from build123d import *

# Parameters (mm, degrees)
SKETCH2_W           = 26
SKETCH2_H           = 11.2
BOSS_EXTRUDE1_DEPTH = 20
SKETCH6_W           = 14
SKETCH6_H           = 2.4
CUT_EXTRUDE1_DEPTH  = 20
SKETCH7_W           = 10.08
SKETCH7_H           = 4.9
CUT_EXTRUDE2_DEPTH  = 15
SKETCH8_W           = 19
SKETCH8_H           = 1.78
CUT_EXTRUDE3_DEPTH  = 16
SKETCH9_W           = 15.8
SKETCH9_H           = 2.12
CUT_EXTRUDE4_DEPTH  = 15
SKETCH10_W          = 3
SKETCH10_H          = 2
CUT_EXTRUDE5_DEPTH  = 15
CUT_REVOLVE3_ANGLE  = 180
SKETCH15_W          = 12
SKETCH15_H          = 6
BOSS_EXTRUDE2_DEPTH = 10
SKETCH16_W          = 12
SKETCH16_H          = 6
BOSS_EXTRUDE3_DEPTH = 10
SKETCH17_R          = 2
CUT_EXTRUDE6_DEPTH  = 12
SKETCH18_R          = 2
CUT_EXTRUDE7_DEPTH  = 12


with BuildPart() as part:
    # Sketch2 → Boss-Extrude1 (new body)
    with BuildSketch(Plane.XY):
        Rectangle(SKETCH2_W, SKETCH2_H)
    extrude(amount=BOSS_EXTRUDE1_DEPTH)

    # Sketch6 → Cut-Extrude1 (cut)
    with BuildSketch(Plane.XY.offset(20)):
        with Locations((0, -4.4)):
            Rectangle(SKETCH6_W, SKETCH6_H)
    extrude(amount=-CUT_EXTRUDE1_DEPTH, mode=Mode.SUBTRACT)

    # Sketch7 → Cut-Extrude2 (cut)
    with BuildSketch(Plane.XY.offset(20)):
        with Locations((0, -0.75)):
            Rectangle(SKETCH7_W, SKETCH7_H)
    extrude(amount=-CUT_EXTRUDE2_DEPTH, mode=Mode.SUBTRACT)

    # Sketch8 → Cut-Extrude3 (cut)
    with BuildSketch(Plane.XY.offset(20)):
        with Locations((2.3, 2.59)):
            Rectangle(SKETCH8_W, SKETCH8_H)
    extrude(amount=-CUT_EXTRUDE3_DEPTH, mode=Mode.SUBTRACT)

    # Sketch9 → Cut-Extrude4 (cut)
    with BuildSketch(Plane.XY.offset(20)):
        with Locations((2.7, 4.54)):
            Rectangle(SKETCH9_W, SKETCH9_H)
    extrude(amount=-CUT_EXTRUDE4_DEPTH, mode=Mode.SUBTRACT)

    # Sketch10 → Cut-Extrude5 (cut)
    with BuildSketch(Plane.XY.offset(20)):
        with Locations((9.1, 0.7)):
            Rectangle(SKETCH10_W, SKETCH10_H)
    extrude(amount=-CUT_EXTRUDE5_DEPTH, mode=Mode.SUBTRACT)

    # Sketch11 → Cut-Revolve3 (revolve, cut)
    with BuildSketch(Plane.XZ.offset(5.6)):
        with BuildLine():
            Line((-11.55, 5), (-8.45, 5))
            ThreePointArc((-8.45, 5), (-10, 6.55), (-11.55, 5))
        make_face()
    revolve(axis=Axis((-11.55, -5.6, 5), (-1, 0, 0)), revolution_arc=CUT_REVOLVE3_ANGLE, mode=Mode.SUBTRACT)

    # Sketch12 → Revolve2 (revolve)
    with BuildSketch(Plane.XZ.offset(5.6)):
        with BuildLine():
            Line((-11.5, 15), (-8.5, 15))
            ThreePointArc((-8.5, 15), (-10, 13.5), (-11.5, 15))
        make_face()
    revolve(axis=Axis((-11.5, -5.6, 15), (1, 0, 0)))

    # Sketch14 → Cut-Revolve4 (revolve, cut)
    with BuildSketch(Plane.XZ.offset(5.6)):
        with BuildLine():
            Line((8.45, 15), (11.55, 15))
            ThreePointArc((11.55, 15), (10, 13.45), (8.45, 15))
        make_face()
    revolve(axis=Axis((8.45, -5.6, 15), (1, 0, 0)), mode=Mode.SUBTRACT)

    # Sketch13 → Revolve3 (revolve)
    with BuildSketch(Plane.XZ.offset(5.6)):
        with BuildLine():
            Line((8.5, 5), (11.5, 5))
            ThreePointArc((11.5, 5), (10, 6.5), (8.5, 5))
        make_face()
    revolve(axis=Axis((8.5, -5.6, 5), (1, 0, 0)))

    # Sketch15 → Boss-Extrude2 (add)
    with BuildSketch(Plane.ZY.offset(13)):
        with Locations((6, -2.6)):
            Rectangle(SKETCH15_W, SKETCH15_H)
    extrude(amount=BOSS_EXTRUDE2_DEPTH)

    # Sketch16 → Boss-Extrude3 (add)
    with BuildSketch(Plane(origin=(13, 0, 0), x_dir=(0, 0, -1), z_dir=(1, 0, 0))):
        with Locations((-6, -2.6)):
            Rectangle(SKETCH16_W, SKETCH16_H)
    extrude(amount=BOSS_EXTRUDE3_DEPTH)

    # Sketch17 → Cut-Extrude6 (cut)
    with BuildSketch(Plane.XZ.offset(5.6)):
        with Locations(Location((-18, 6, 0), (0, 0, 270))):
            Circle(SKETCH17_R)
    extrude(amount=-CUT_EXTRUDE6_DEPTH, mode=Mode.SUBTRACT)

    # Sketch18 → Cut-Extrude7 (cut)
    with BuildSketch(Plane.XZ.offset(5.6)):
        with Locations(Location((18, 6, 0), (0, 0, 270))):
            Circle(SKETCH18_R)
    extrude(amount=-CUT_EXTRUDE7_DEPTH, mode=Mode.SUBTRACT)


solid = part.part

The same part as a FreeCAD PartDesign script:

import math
import FreeCAD as App
import Part
import Sketcher
from FreeCAD import Vector

doc = App.newDocument("Part")
params = doc.addObject("Spreadsheet::Sheet", "Params")
for row, (alias, value) in enumerate([
    ("sketch1_width", "26 mm"),
    ("sketch1_height", "11.2 mm"),
    ("pad1_length", "20 mm"),
    ("sketch2_width", "14 mm"),
    ("sketch2_height", "2.4 mm"),
    ("pocket1_length", "20 mm"),
    ("sketch3_height", "4.9 mm"),
    ("sketch3_width", "10.08 mm"),
    ("pocket2_length", "15 mm"),
    ("sketch4_width", "19 mm"),
    ("sketch4_height", "1.78 mm"),
    ("pocket3_length", "16 mm"),
    ("sketch5_width", "15.8 mm"),
    ("sketch5_height", "2.12 mm"),
    ("pocket4_length", "15 mm"),
    ("sketch6_width", "3 mm"),
    ("sketch6_height", "2 mm"),
    ("pocket5_length", "15 mm"),
    ("sketch7_radius", "1.55 mm"),
    ("groove_angle", "180 deg"),
    ("sketch8_radius", "1.5 mm"),
    ("revolution_angle", "360 deg"),
    ("sketch9_radius", "1.55 mm"),
    ("groove2_angle", "360 deg"),
    ("sketch10_radius", "1.5 mm"),
    ("revolution2_angle", "360 deg"),
    ("sketch11_width", "6 mm"),
    ("sketch11_height", "12 mm"),
    ("pad2_length", "10 mm"),
    ("sketch12_width", "6 mm"),
    ("sketch12_height", "12 mm"),
    ("pad3_length", "10 mm"),
    ("sketch13_diameter", "4 mm"),
    ("pocket6_length", "12 mm"),
    ("sketch14_diameter", "4 mm"),
    ("pocket7_length", "12 mm"),
], start=1):
    params.set(f"A{row}", alias)
    params.set(f"B{row}", "=" + value)
    params.setAlias(f"B{row}", alias)

body = doc.addObject("PartDesign::Body", "Body")

sketch1 = body.newObject("Sketcher::SketchObject", "Sketch")
sketch1.AttachmentSupport = (doc.getObject("XY_Plane"), [""])
sketch1.MapMode = "FlatFace"
sketch1.addGeometry([
    Part.LineSegment(Vector(-13, 6, 0), Vector(-13, -6, 0)),
    Part.LineSegment(Vector(-13, -6, 0), Vector(13, -6, 0)),
    Part.LineSegment(Vector(13, -6, 0), Vector(13, 6, 0)),
    Part.LineSegment(Vector(13, 6, 0), Vector(-13, 6, 0)),
], False)
sketch1.addConstraint([
    Sketcher.Constraint("Coincident", 0, 2, 1, 1),
    Sketcher.Constraint("Coincident", 1, 2, 2, 1),
    Sketcher.Constraint("Coincident", 2, 2, 3, 1),
    Sketcher.Constraint("Coincident", 3, 2, 0, 1),
    Sketcher.Constraint("Vertical", 0),
    Sketcher.Constraint("Horizontal", 1),
    Sketcher.Constraint("Vertical", 2),
    Sketcher.Constraint("Horizontal", 3),
    Sketcher.Constraint("Symmetric", 0, 2, 2, 2, -1, 1),
    Sketcher.Constraint("DistanceX", 1, 1, 1, 2, 26.0),
    Sketcher.Constraint("DistanceY", 0, 2, 0, 1, 11.2),
])
sketch1.setExpression("Constraints[9]", "Params.sketch1_width")
sketch1.setExpression("Constraints[10]", "Params.sketch1_height")
pad1 = body.newObject("PartDesign::Pad", "Pad")
pad1.Profile = sketch1
pad1.setExpression("Length", "Params.pad1_length")

sketch2 = body.newObject("Sketcher::SketchObject", "Sketch001")
sketch2.AttachmentSupport = (doc.getObject("XY_Plane"), [""])
sketch2.MapMode = "FlatFace"
sketch2.AttachmentOffset = App.Placement(Vector(0, 0, 20), App.Rotation())
sketch2.addGeometry([
    Part.LineSegment(Vector(-7, -3.2, 0), Vector(-7, -5.6, 0)),
    Part.LineSegment(Vector(-7, -5.6, 0), Vector(7, -5.6, 0)),
    Part.LineSegment(Vector(7, -5.6, 0), Vector(7, -3.2, 0)),
    Part.LineSegment(Vector(7, -3.2, 0), Vector(-7, -3.2, 0)),
], False)
sketch2.addConstraint([
    Sketcher.Constraint("Coincident", 0, 2, 1, 1),
    Sketcher.Constraint("Coincident", 1, 2, 2, 1),
    Sketcher.Constraint("Coincident", 2, 2, 3, 1),
    Sketcher.Constraint("Coincident", 3, 2, 0, 1),
    Sketcher.Constraint("Vertical", 0),
    Sketcher.Constraint("Horizontal", 1),
    Sketcher.Constraint("Vertical", 2),
    Sketcher.Constraint("Horizontal", 3),
    Sketcher.Constraint("DistanceX", 1, 1, 1, 2, 14.0),
    Sketcher.Constraint("DistanceY", 0, 2, 0, 1, 2.4),
    Sketcher.Constraint("DistanceX", 0, 2, -1, 1, 7.0),
    Sketcher.Constraint("DistanceY", 0, 2, -1, 1, 5.6),
])
sketch2.setExpression("Constraints[8]", "Params.sketch2_width")
sketch2.setExpression("Constraints[9]", "Params.sketch2_height")
pocket1 = body.newObject("PartDesign::Pocket", "Pocket")
pocket1.Profile = sketch2
pocket1.setExpression("Length", "Params.pocket1_length")

sketch3 = body.newObject("Sketcher::SketchObject", "Sketch002")
sketch3.AttachmentSupport = (doc.getObject("XY_Plane"), [""])
sketch3.MapMode = "FlatFace"
sketch3.AttachmentOffset = App.Placement(Vector(0, 0, 20), App.Rotation())
sketch3.addGeometry([
    Part.LineSegment(Vector(-5, 1.7, 0), Vector(-5, -3.2, 0)),
    Part.LineSegment(Vector(-5, -3.2, 0), Vector(5, -3.2, 0)),
    Part.LineSegment(Vector(5, -3.2, 0), Vector(5, 1.7, 0)),
    Part.LineSegment(Vector(5, 1.7, 0), Vector(-5, 1.7, 0)),
], False)
sketch3.addConstraint([
    Sketcher.Constraint("Coincident", 0, 2, 1, 1),
    Sketcher.Constraint("Coincident", 1, 2, 2, 1),
    Sketcher.Constraint("Coincident", 2, 2, 3, 1),
    Sketcher.Constraint("Coincident", 3, 2, 0, 1),
    Sketcher.Constraint("Vertical", 0),
    Sketcher.Constraint("Horizontal", 1),
    Sketcher.Constraint("Vertical", 2),
    Sketcher.Constraint("Horizontal", 3),
    Sketcher.Constraint("DistanceY", 0, 2, 0, 1, 4.9),
    Sketcher.Constraint("DistanceX", 1, 1, 1, 2, 10.08),
    Sketcher.Constraint("DistanceY", 0, 2, -1, 1, 3.2),
    Sketcher.Constraint("DistanceX", 0, 2, -1, 1, 5.04),
])
sketch3.setExpression("Constraints[8]", "Params.sketch3_height")
sketch3.setExpression("Constraints[9]", "Params.sketch3_width")
pocket2 = body.newObject("PartDesign::Pocket", "Pocket001")
pocket2.Profile = sketch3
pocket2.setExpression("Length", "Params.pocket2_length")

sketch4 = body.newObject("Sketcher::SketchObject", "Sketch003")
sketch4.AttachmentSupport = (doc.getObject("XY_Plane"), [""])
sketch4.MapMode = "FlatFace"
sketch4.AttachmentOffset = App.Placement(Vector(0, 0, 20), App.Rotation())
sketch4.addGeometry([
    Part.LineSegment(Vector(-7.2, 3.5, 0), Vector(-7.2, 1.7, 0)),
    Part.LineSegment(Vector(-7.2, 1.7, 0), Vector(11.8, 1.7, 0)),
    Part.LineSegment(Vector(11.8, 1.7, 0), Vector(11.8, 3.5, 0)),
    Part.LineSegment(Vector(11.8, 3.5, 0), Vector(-7.2, 3.5, 0)),
], False)
sketch4.addConstraint([
    Sketcher.Constraint("Coincident", 0, 2, 1, 1),
    Sketcher.Constraint("Coincident", 1, 2, 2, 1),
    Sketcher.Constraint("Coincident", 2, 2, 3, 1),
    Sketcher.Constraint("Coincident", 3, 2, 0, 1),
    Sketcher.Constraint("Vertical", 0),
    Sketcher.Constraint("Horizontal", 1),
    Sketcher.Constraint("Vertical", 2),
    Sketcher.Constraint("Horizontal", 3),
    Sketcher.Constraint("DistanceX", 1, 1, 1, 2, 19.0),
    Sketcher.Constraint("DistanceY", 0, 2, 0, 1, 1.78),
    Sketcher.Constraint("DistanceX", 0, 2, -1, 1, 7.2),
    Sketcher.Constraint("DistanceY", -1, 1, 0, 2, 1.7),
])
sketch4.setExpression("Constraints[8]", "Params.sketch4_width")
sketch4.setExpression("Constraints[9]", "Params.sketch4_height")
pocket3 = body.newObject("PartDesign::Pocket", "Pocket002")
pocket3.Profile = sketch4
pocket3.setExpression("Length", "Params.pocket3_length")

sketch5 = body.newObject("Sketcher::SketchObject", "Sketch004")
sketch5.AttachmentSupport = (doc.getObject("XY_Plane"), [""])
sketch5.MapMode = "FlatFace"
sketch5.AttachmentOffset = App.Placement(Vector(0, 0, 20), App.Rotation())
sketch5.addGeometry([
    Part.LineSegment(Vector(-5.2, 5.6, 0), Vector(-5.2, 3.5, 0)),
    Part.LineSegment(Vector(-5.2, 3.5, 0), Vector(10.6, 3.5, 0)),
    Part.LineSegment(Vector(10.6, 3.5, 0), Vector(10.6, 5.6, 0)),
    Part.LineSegment(Vector(10.6, 5.6, 0), Vector(-5.2, 5.6, 0)),
], False)
sketch5.addConstraint([
    Sketcher.Constraint("Coincident", 0, 2, 1, 1),
    Sketcher.Constraint("Coincident", 1, 2, 2, 1),
    Sketcher.Constraint("Coincident", 2, 2, 3, 1),
    Sketcher.Constraint("Coincident", 3, 2, 0, 1),
    Sketcher.Constraint("Vertical", 0),
    Sketcher.Constraint("Horizontal", 1),
    Sketcher.Constraint("Vertical", 2),
    Sketcher.Constraint("Horizontal", 3),
    Sketcher.Constraint("DistanceX", 1, 1, 1, 2, 15.8),
    Sketcher.Constraint("DistanceY", 0, 2, 0, 1, 2.12),
    Sketcher.Constraint("DistanceX", 0, 2, -1, 1, 5.2),
    Sketcher.Constraint("DistanceY", -1, 1, 2, 2, 5.6),
])
sketch5.setExpression("Constraints[8]", "Params.sketch5_width")
sketch5.setExpression("Constraints[9]", "Params.sketch5_height")
pocket4 = body.newObject("PartDesign::Pocket", "Pocket003")
pocket4.Profile = sketch5
pocket4.setExpression("Length", "Params.pocket4_length")

sketch6 = body.newObject("Sketcher::SketchObject", "Sketch005")
sketch6.AttachmentSupport = (doc.getObject("XY_Plane"), [""])
sketch6.MapMode = "FlatFace"
sketch6.AttachmentOffset = App.Placement(Vector(0, 0, 20), App.Rotation())
sketch6.addGeometry([
    Part.LineSegment(Vector(7.6, 1.7, 0), Vector(7.6, -0.3, 0)),
    Part.LineSegment(Vector(7.6, -0.3, 0), Vector(10.6, -0.3, 0)),
    Part.LineSegment(Vector(10.6, -0.3, 0), Vector(10.6, 1.7, 0)),
    Part.LineSegment(Vector(10.6, 1.7, 0), Vector(7.6, 1.7, 0)),
], False)
sketch6.addConstraint([
    Sketcher.Constraint("Coincident", 0, 2, 1, 1),
    Sketcher.Constraint("Coincident", 1, 2, 2, 1),
    Sketcher.Constraint("Coincident", 2, 2, 3, 1),
    Sketcher.Constraint("Coincident", 3, 2, 0, 1),
    Sketcher.Constraint("Vertical", 0),
    Sketcher.Constraint("Horizontal", 1),
    Sketcher.Constraint("Vertical", 2),
    Sketcher.Constraint("Horizontal", 3),
    Sketcher.Constraint("DistanceX", 1, 1, 1, 2, 3.0),
    Sketcher.Constraint("DistanceY", 0, 2, 0, 1, 2.0),
    Sketcher.Constraint("DistanceX", -1, 1, 0, 2, 7.6),
    Sketcher.Constraint("DistanceY", 0, 2, -1, 1, 0.3),
])
sketch6.setExpression("Constraints[8]", "Params.sketch6_width")
sketch6.setExpression("Constraints[9]", "Params.sketch6_height")
pocket5 = body.newObject("PartDesign::Pocket", "Pocket004")
pocket5.Profile = sketch6
pocket5.setExpression("Length", "Params.pocket5_length")

sketch7 = body.newObject("Sketcher::SketchObject", "Sketch006")
sketch7.AttachmentSupport = (doc.getObject("XZ_Plane"), [""])
sketch7.MapMode = "FlatFace"
sketch7.AttachmentOffset = App.Placement(Vector(0, 0, 5.6), App.Rotation())
sketch7.addGeometry([
    Part.LineSegment(Vector(-11.6, 5, 0), Vector(-8.4, 5, 0)),
    Part.ArcOfCircle(Part.Circle(Vector(-10, 5, 0), Vector(0, 0, 1), 1.6), math.radians(0), math.radians(180)),
], False)
sketch7.addGeometry(Part.LineSegment(Vector(-8.4, 5, 0), Vector(-11.6, 5, 0)), True)
sketch7.addConstraint([
    Sketcher.Constraint("Coincident", 0, 1, 1, 2),
    Sketcher.Constraint("Coincident", 1, 1, 0, 2),
    Sketcher.Constraint("Horizontal", 0),
    Sketcher.Constraint("Horizontal", 2),
    Sketcher.Constraint("Coincident", 2, 1, 1, 1),
    Sketcher.Constraint("Horizontal", 1, 3, 0, 1),
    Sketcher.Constraint("Equal", 0, 2),
    Sketcher.Constraint("Radius", 1, 1.55),
    Sketcher.Constraint("DistanceX", 1, 3, -1, 1, 10.0),
    Sketcher.Constraint("DistanceY", -1, 1, 1, 3, 5.0),
])
sketch7.setExpression("Constraints[7]", "Params.sketch7_radius")
groove = body.newObject("PartDesign::Groove", "Groove")
groove.Profile = sketch7
groove.ReferenceAxis = (sketch7, ["Axis0"])
groove.setExpression("Angle", "Params.groove_angle")

sketch8 = body.newObject("Sketcher::SketchObject", "Sketch007")
sketch8.AttachmentSupport = (doc.getObject("XZ_Plane"), [""])
sketch8.MapMode = "FlatFace"
sketch8.AttachmentOffset = App.Placement(Vector(0, 0, 5.6), App.Rotation())
sketch8.addGeometry([
    Part.LineSegment(Vector(-8.5, 15, 0), Vector(-11.5, 15, 0)),
    Part.ArcOfCircle(Part.Circle(Vector(-10, 15, 0), Vector(0, 0, 1), 1.5), math.radians(180), math.radians(360)),
], False)
sketch8.addGeometry(Part.LineSegment(Vector(-11.5, 15, 0), Vector(-8.5, 15, 0)), True)
sketch8.addConstraint([
    Sketcher.Constraint("Coincident", 0, 1, 1, 2),
    Sketcher.Constraint("Coincident", 1, 1, 0, 2),
    Sketcher.Constraint("Horizontal", 0),
    Sketcher.Constraint("Horizontal", 2),
    Sketcher.Constraint("Coincident", 2, 1, 1, 1),
    Sketcher.Constraint("Horizontal", 1, 3, 0, 1),
    Sketcher.Constraint("Equal", 0, 2),
    Sketcher.Constraint("Radius", 1, 1.5),
    Sketcher.Constraint("DistanceX", 1, 3, -1, 1, 10.0),
    Sketcher.Constraint("DistanceY", -1, 1, 1, 3, 15.0),
])
sketch8.setExpression("Constraints[7]", "Params.sketch8_radius")
revolution = body.newObject("PartDesign::Revolution", "Revolution")
revolution.Profile = sketch8
revolution.ReferenceAxis = (sketch8, ["Axis0"])
revolution.setExpression("Angle", "Params.revolution_angle")

sketch9 = body.newObject("Sketcher::SketchObject", "Sketch008")
sketch9.AttachmentSupport = (doc.getObject("XZ_Plane"), [""])
sketch9.MapMode = "FlatFace"
sketch9.AttachmentOffset = App.Placement(Vector(0, 0, 5.6), App.Rotation())
sketch9.addGeometry([
    Part.LineSegment(Vector(11.6, 15, 0), Vector(8.4, 15, 0)),
    Part.ArcOfCircle(Part.Circle(Vector(10, 15, 0), Vector(0, 0, 1), 1.6), math.radians(180), math.radians(360)),
], False)
sketch9.addGeometry(Part.LineSegment(Vector(8.4, 15, 0), Vector(11.6, 15, 0)), True)
sketch9.addConstraint([
    Sketcher.Constraint("Coincident", 0, 1, 1, 2),
    Sketcher.Constraint("Coincident", 1, 1, 0, 2),
    Sketcher.Constraint("Horizontal", 0),
    Sketcher.Constraint("Horizontal", 2),
    Sketcher.Constraint("Coincident", 2, 1, 1, 1),
    Sketcher.Constraint("Horizontal", 1, 3, 0, 1),
    Sketcher.Constraint("Equal", 0, 2),
    Sketcher.Constraint("Radius", 1, 1.55),
    Sketcher.Constraint("DistanceX", -1, 1, 1, 3, 10.0),
    Sketcher.Constraint("DistanceY", -1, 1, 1, 3, 15.0),
])
sketch9.setExpression("Constraints[7]", "Params.sketch9_radius")
groove2 = body.newObject("PartDesign::Groove", "Groove001")
groove2.Profile = sketch9
groove2.ReferenceAxis = (sketch9, ["Axis0"])
groove2.setExpression("Angle", "Params.groove2_angle")

sketch10 = body.newObject("Sketcher::SketchObject", "Sketch009")
sketch10.AttachmentSupport = (doc.getObject("XZ_Plane"), [""])
sketch10.MapMode = "FlatFace"
sketch10.AttachmentOffset = App.Placement(Vector(0, 0, 5.6), App.Rotation())
sketch10.addGeometry([
    Part.LineSegment(Vector(8.5, 5, 0), Vector(11.5, 5, 0)),
    Part.ArcOfCircle(Part.Circle(Vector(10, 5, 0), Vector(0, 0, 1), 1.5), math.radians(0), math.radians(180)),
], False)
sketch10.addGeometry(Part.LineSegment(Vector(8.5, 5, 0), Vector(11.5, 5, 0)), True)
sketch10.addConstraint([
    Sketcher.Constraint("Coincident", 0, 1, 1, 2),
    Sketcher.Constraint("Coincident", 1, 1, 0, 2),
    Sketcher.Constraint("Horizontal", 0),
    Sketcher.Constraint("Horizontal", 2),
    Sketcher.Constraint("Coincident", 2, 1, 0, 1),
    Sketcher.Constraint("Horizontal", 1, 3, 0, 1),
    Sketcher.Constraint("Equal", 0, 2),
    Sketcher.Constraint("Radius", 1, 1.5),
    Sketcher.Constraint("DistanceX", -1, 1, 1, 3, 10.0),
    Sketcher.Constraint("DistanceY", -1, 1, 1, 3, 5.0),
])
sketch10.setExpression("Constraints[7]", "Params.sketch10_radius")
revolution2 = body.newObject("PartDesign::Revolution", "Revolution001")
revolution2.Profile = sketch10
revolution2.ReferenceAxis = (sketch10, ["Axis0"])
revolution2.setExpression("Angle", "Params.revolution2_angle")

sketch11 = body.newObject("Sketcher::SketchObject", "Sketch010")
sketch11.AttachmentSupport = (doc.getObject("YZ_Plane"), [""])
sketch11.MapMode = "FlatFace"
sketch11.AttachmentOffset = App.Placement(Vector(0, 0, -13), App.Rotation())
sketch11.addGeometry([
    Part.LineSegment(Vector(0, 0, 0), Vector(-6, 0, 0)),
    Part.LineSegment(Vector(-6, 0, 0), Vector(-6, 12, 0)),
    Part.LineSegment(Vector(-6, 12, 0), Vector(0, 12, 0)),
    Part.LineSegment(Vector(0, 12, 0), Vector(0, 0, 0)),
], False)
sketch11.addConstraint([
    Sketcher.Constraint("Coincident", 0, 2, 1, 1),
    Sketcher.Constraint("Coincident", 1, 2, 2, 1),
    Sketcher.Constraint("Coincident", 2, 2, 3, 1),
    Sketcher.Constraint("Coincident", 3, 2, 0, 1),
    Sketcher.Constraint("Horizontal", 0),
    Sketcher.Constraint("Vertical", 1),
    Sketcher.Constraint("Horizontal", 2),
    Sketcher.Constraint("Vertical", 3),
    Sketcher.Constraint("PointOnObject", 0, 2, -1),
    Sketcher.Constraint("DistanceX", 0, 2, 0, 1, 6.0),
    Sketcher.Constraint("DistanceY", 1, 1, 1, 2, 12.0),
    Sketcher.Constraint("DistanceX", 0, 2, -1, 1, 5.6),
])
sketch11.setExpression("Constraints[9]", "Params.sketch11_width")
sketch11.setExpression("Constraints[10]", "Params.sketch11_height")
pad2 = body.newObject("PartDesign::Pad", "Pad001")
pad2.Profile = sketch11
pad2.setExpression("Length", "Params.pad2_length")
pad2.Reversed = True

sketch12 = body.newObject("Sketcher::SketchObject", "Sketch011")
sketch12.AttachmentSupport = (doc.getObject("YZ_Plane"), [""])
sketch12.MapMode = "FlatFace"
sketch12.AttachmentOffset = App.Placement(Vector(0, 0, 13), App.Rotation())
sketch12.addGeometry([
    Part.LineSegment(Vector(0, 12, 0), Vector(-6, 12, 0)),
    Part.LineSegment(Vector(-6, 12, 0), Vector(-6, 0, 0)),
    Part.LineSegment(Vector(-6, 0, 0), Vector(0, 0, 0)),
    Part.LineSegment(Vector(0, 0, 0), Vector(0, 12, 0)),
], False)
sketch12.addConstraint([
    Sketcher.Constraint("Coincident", 0, 2, 1, 1),
    Sketcher.Constraint("Coincident", 1, 2, 2, 1),
    Sketcher.Constraint("Coincident", 2, 2, 3, 1),
    Sketcher.Constraint("Coincident", 3, 2, 0, 1),
    Sketcher.Constraint("Horizontal", 0),
    Sketcher.Constraint("Vertical", 1),
    Sketcher.Constraint("Horizontal", 2),
    Sketcher.Constraint("Vertical", 3),
    Sketcher.Constraint("PointOnObject", 1, 2, -1),
    Sketcher.Constraint("DistanceX", 0, 2, 0, 1, 6.0),
    Sketcher.Constraint("DistanceY", 1, 2, 1, 1, 12.0),
    Sketcher.Constraint("DistanceX", 0, 2, -1, 1, 5.6),
])
sketch12.setExpression("Constraints[9]", "Params.sketch12_width")
sketch12.setExpression("Constraints[10]", "Params.sketch12_height")
pad3 = body.newObject("PartDesign::Pad", "Pad002")
pad3.Profile = sketch12
pad3.setExpression("Length", "Params.pad3_length")

sketch13 = body.newObject("Sketcher::SketchObject", "Sketch012")
sketch13.AttachmentSupport = (doc.getObject("XZ_Plane"), [""])
sketch13.MapMode = "FlatFace"
sketch13.AttachmentOffset = App.Placement(Vector(0, 0, 5.6), App.Rotation())
sketch13.addGeometry(Part.Circle(Vector(-18, 6, 0), Vector(0, 0, 1), 2), False)
sketch13.addConstraint([
    Sketcher.Constraint("Diameter", 0, 4.0),
    Sketcher.Constraint("DistanceX", 0, 3, -1, 1, 18.0),
    Sketcher.Constraint("DistanceY", -1, 1, 0, 3, 6.0),
])
sketch13.setExpression("Constraints[0]", "Params.sketch13_diameter")
pocket6 = body.newObject("PartDesign::Pocket", "Pocket005")
pocket6.Profile = sketch13
pocket6.setExpression("Length", "Params.pocket6_length")

sketch14 = body.newObject("Sketcher::SketchObject", "Sketch013")
sketch14.AttachmentSupport = (doc.getObject("XZ_Plane"), [""])
sketch14.MapMode = "FlatFace"
sketch14.AttachmentOffset = App.Placement(Vector(0, 0, 5.6), App.Rotation())
sketch14.addGeometry(Part.Circle(Vector(18, 6, 0), Vector(0, 0, 1), 2), False)
sketch14.addConstraint([
    Sketcher.Constraint("Diameter", 0, 4.0),
    Sketcher.Constraint("DistanceX", -1, 1, 0, 3, 18.0),
    Sketcher.Constraint("DistanceY", -1, 1, 0, 3, 6.0),
])
sketch14.setExpression("Constraints[0]", "Params.sketch14_diameter")
pocket7 = body.newObject("PartDesign::Pocket", "Pocket006")
pocket7.Profile = sketch14
pocket7.setExpression("Length", "Params.pocket7_length")

doc.recompute()
